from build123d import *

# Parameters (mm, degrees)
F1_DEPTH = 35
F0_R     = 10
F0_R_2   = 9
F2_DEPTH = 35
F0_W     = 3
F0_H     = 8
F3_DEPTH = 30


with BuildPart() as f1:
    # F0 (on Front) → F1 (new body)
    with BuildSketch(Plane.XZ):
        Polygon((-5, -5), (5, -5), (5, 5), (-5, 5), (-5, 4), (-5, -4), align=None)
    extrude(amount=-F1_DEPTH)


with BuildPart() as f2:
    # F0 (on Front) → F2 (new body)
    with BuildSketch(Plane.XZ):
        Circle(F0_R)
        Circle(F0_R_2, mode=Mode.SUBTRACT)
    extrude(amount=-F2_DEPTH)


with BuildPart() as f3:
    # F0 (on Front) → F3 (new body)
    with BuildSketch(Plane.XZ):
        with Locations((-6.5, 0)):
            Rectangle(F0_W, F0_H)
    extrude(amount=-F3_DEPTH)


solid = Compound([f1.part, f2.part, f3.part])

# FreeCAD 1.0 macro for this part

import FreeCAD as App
import Part
import Sketcher

doc = App.newDocument("Part")
body = doc.addObject("PartDesign::Body", "Body")

# Sketch on XZ plane
sketch1 = body.newObject("Sketcher::SketchObject", "Sketch")
sketch1.AttachmentSupport = (doc.getObject("XZ_Plane"), [""])
sketch1.MapMode = "FlatFace"
sketch1.addGeometry([
    Part.LineSegment(App.Vector(-5, -5, 0), App.Vector(5, -5, 0)),
    Part.LineSegment(App.Vector(5, -5, 0), App.Vector(5, 5, 0)),
    Part.LineSegment(App.Vector(5, 5, 0), App.Vector(-5, 5, 0)),
    Part.LineSegment(App.Vector(-5, 5, 0), App.Vector(-5, -5, 0)),
], False)
sketch1.addConstraint([
    Sketcher.Constraint("Coincident", 0, 2, 1, 1),
    Sketcher.Constraint("Coincident", 1, 2, 2, 1),
    Sketcher.Constraint("Coincident", 2, 2, 3, 1),
    Sketcher.Constraint("Coincident", 3, 2, 0, 1),
    Sketcher.Constraint("Horizontal", 0),
    Sketcher.Constraint("Vertical", 1),
    Sketcher.Constraint("Horizontal", 2),
    Sketcher.Constraint("Vertical", 3),
    Sketcher.Constraint("Symmetric", 0, 2, 2, 2, -1, 1),
    Sketcher.Constraint("Equal", 2, 1),
    Sketcher.Constraint("DistanceX", 0, 1, 0, 2, 10.0),
])
pad1 = body.newObject("PartDesign::Pad", "Pad")
pad1.Profile = sketch1
pad1.Length = 35
pad1.Reversed = True
body2 = doc.addObject("PartDesign::Body", "Body001")

# Sketch on XZ plane
sketch2 = body2.newObject("Sketcher::SketchObject", "Sketch001")
sketch2.AttachmentSupport = (doc.getObject("XZ_Plane001"), [""])
sketch2.MapMode = "FlatFace"
sketch2.addGeometry([
    Part.Circle(App.Vector(0, 0, 0), App.Vector(0, 0, 1), 10),
    Part.Circle(App.Vector(0, 0, 0), App.Vector(0, 0, 1), 9),
], False)
sketch2.addConstraint([
    Sketcher.Constraint("Coincident", 0, 3, -1, 1),
    Sketcher.Constraint("Coincident", 1, 3, -1, 1),
    Sketcher.Constraint("Diameter", 0, 20.0),
    Sketcher.Constraint("Diameter", 1, 18.0),
])
pad2 = body2.newObject("PartDesign::Pad", "Pad001")
pad2.Profile = sketch2
pad2.Length = 35
pad2.Reversed = True
body3 = doc.addObject("PartDesign::Body", "Body002")

# Sketch on XZ plane
sketch3 = body3.newObject("Sketcher::SketchObject", "Sketch002")
sketch3.AttachmentSupport = (doc.getObject("XZ_Plane002"), [""])
sketch3.MapMode = "FlatFace"
sketch3.addGeometry([
    Part.LineSegment(App.Vector(-8, 4, 0), App.Vector(-8, -4, 0)),
    Part.LineSegment(App.Vector(-8, -4, 0), App.Vector(-5, -4, 0)),
    Part.LineSegment(App.Vector(-5, -4, 0), App.Vector(-5, 4, 0)),
    Part.LineSegment(App.Vector(-5, 4, 0), App.Vector(-8, 4, 0)),
], False)
sketch3.addConstraint([
    Sketcher.Constraint("Coincident", 0, 2, 1, 1),
    Sketcher.Constraint("Coincident", 1, 2, 2, 1),
    Sketcher.Constraint("Coincident", 2, 2, 3, 1),
    Sketcher.Constraint("Coincident", 3, 2, 0, 1),
    Sketcher.Constraint("Vertical", 0),
    Sketcher.Constraint("Horizontal", 1),
    Sketcher.Constraint("Vertical", 2),
    Sketcher.Constraint("Horizontal", 3),
    Sketcher.Constraint("DistanceX", 1, 1, 1, 2, 3.0),
    Sketcher.Constraint("DistanceY", 0, 2, 0, 1, 8.0),
    Sketcher.Constraint("DistanceX", 0, 2, -1, 1, 8.0),
    Sketcher.Constraint("DistanceY", 0, 2, -1, 1, 4.0),
])
pad3 = body3.newObject("PartDesign::Pad", "Pad002")
pad3.Profile = sketch3
pad3.Length = 30
pad3.Reversed = True

doc.recompute()
